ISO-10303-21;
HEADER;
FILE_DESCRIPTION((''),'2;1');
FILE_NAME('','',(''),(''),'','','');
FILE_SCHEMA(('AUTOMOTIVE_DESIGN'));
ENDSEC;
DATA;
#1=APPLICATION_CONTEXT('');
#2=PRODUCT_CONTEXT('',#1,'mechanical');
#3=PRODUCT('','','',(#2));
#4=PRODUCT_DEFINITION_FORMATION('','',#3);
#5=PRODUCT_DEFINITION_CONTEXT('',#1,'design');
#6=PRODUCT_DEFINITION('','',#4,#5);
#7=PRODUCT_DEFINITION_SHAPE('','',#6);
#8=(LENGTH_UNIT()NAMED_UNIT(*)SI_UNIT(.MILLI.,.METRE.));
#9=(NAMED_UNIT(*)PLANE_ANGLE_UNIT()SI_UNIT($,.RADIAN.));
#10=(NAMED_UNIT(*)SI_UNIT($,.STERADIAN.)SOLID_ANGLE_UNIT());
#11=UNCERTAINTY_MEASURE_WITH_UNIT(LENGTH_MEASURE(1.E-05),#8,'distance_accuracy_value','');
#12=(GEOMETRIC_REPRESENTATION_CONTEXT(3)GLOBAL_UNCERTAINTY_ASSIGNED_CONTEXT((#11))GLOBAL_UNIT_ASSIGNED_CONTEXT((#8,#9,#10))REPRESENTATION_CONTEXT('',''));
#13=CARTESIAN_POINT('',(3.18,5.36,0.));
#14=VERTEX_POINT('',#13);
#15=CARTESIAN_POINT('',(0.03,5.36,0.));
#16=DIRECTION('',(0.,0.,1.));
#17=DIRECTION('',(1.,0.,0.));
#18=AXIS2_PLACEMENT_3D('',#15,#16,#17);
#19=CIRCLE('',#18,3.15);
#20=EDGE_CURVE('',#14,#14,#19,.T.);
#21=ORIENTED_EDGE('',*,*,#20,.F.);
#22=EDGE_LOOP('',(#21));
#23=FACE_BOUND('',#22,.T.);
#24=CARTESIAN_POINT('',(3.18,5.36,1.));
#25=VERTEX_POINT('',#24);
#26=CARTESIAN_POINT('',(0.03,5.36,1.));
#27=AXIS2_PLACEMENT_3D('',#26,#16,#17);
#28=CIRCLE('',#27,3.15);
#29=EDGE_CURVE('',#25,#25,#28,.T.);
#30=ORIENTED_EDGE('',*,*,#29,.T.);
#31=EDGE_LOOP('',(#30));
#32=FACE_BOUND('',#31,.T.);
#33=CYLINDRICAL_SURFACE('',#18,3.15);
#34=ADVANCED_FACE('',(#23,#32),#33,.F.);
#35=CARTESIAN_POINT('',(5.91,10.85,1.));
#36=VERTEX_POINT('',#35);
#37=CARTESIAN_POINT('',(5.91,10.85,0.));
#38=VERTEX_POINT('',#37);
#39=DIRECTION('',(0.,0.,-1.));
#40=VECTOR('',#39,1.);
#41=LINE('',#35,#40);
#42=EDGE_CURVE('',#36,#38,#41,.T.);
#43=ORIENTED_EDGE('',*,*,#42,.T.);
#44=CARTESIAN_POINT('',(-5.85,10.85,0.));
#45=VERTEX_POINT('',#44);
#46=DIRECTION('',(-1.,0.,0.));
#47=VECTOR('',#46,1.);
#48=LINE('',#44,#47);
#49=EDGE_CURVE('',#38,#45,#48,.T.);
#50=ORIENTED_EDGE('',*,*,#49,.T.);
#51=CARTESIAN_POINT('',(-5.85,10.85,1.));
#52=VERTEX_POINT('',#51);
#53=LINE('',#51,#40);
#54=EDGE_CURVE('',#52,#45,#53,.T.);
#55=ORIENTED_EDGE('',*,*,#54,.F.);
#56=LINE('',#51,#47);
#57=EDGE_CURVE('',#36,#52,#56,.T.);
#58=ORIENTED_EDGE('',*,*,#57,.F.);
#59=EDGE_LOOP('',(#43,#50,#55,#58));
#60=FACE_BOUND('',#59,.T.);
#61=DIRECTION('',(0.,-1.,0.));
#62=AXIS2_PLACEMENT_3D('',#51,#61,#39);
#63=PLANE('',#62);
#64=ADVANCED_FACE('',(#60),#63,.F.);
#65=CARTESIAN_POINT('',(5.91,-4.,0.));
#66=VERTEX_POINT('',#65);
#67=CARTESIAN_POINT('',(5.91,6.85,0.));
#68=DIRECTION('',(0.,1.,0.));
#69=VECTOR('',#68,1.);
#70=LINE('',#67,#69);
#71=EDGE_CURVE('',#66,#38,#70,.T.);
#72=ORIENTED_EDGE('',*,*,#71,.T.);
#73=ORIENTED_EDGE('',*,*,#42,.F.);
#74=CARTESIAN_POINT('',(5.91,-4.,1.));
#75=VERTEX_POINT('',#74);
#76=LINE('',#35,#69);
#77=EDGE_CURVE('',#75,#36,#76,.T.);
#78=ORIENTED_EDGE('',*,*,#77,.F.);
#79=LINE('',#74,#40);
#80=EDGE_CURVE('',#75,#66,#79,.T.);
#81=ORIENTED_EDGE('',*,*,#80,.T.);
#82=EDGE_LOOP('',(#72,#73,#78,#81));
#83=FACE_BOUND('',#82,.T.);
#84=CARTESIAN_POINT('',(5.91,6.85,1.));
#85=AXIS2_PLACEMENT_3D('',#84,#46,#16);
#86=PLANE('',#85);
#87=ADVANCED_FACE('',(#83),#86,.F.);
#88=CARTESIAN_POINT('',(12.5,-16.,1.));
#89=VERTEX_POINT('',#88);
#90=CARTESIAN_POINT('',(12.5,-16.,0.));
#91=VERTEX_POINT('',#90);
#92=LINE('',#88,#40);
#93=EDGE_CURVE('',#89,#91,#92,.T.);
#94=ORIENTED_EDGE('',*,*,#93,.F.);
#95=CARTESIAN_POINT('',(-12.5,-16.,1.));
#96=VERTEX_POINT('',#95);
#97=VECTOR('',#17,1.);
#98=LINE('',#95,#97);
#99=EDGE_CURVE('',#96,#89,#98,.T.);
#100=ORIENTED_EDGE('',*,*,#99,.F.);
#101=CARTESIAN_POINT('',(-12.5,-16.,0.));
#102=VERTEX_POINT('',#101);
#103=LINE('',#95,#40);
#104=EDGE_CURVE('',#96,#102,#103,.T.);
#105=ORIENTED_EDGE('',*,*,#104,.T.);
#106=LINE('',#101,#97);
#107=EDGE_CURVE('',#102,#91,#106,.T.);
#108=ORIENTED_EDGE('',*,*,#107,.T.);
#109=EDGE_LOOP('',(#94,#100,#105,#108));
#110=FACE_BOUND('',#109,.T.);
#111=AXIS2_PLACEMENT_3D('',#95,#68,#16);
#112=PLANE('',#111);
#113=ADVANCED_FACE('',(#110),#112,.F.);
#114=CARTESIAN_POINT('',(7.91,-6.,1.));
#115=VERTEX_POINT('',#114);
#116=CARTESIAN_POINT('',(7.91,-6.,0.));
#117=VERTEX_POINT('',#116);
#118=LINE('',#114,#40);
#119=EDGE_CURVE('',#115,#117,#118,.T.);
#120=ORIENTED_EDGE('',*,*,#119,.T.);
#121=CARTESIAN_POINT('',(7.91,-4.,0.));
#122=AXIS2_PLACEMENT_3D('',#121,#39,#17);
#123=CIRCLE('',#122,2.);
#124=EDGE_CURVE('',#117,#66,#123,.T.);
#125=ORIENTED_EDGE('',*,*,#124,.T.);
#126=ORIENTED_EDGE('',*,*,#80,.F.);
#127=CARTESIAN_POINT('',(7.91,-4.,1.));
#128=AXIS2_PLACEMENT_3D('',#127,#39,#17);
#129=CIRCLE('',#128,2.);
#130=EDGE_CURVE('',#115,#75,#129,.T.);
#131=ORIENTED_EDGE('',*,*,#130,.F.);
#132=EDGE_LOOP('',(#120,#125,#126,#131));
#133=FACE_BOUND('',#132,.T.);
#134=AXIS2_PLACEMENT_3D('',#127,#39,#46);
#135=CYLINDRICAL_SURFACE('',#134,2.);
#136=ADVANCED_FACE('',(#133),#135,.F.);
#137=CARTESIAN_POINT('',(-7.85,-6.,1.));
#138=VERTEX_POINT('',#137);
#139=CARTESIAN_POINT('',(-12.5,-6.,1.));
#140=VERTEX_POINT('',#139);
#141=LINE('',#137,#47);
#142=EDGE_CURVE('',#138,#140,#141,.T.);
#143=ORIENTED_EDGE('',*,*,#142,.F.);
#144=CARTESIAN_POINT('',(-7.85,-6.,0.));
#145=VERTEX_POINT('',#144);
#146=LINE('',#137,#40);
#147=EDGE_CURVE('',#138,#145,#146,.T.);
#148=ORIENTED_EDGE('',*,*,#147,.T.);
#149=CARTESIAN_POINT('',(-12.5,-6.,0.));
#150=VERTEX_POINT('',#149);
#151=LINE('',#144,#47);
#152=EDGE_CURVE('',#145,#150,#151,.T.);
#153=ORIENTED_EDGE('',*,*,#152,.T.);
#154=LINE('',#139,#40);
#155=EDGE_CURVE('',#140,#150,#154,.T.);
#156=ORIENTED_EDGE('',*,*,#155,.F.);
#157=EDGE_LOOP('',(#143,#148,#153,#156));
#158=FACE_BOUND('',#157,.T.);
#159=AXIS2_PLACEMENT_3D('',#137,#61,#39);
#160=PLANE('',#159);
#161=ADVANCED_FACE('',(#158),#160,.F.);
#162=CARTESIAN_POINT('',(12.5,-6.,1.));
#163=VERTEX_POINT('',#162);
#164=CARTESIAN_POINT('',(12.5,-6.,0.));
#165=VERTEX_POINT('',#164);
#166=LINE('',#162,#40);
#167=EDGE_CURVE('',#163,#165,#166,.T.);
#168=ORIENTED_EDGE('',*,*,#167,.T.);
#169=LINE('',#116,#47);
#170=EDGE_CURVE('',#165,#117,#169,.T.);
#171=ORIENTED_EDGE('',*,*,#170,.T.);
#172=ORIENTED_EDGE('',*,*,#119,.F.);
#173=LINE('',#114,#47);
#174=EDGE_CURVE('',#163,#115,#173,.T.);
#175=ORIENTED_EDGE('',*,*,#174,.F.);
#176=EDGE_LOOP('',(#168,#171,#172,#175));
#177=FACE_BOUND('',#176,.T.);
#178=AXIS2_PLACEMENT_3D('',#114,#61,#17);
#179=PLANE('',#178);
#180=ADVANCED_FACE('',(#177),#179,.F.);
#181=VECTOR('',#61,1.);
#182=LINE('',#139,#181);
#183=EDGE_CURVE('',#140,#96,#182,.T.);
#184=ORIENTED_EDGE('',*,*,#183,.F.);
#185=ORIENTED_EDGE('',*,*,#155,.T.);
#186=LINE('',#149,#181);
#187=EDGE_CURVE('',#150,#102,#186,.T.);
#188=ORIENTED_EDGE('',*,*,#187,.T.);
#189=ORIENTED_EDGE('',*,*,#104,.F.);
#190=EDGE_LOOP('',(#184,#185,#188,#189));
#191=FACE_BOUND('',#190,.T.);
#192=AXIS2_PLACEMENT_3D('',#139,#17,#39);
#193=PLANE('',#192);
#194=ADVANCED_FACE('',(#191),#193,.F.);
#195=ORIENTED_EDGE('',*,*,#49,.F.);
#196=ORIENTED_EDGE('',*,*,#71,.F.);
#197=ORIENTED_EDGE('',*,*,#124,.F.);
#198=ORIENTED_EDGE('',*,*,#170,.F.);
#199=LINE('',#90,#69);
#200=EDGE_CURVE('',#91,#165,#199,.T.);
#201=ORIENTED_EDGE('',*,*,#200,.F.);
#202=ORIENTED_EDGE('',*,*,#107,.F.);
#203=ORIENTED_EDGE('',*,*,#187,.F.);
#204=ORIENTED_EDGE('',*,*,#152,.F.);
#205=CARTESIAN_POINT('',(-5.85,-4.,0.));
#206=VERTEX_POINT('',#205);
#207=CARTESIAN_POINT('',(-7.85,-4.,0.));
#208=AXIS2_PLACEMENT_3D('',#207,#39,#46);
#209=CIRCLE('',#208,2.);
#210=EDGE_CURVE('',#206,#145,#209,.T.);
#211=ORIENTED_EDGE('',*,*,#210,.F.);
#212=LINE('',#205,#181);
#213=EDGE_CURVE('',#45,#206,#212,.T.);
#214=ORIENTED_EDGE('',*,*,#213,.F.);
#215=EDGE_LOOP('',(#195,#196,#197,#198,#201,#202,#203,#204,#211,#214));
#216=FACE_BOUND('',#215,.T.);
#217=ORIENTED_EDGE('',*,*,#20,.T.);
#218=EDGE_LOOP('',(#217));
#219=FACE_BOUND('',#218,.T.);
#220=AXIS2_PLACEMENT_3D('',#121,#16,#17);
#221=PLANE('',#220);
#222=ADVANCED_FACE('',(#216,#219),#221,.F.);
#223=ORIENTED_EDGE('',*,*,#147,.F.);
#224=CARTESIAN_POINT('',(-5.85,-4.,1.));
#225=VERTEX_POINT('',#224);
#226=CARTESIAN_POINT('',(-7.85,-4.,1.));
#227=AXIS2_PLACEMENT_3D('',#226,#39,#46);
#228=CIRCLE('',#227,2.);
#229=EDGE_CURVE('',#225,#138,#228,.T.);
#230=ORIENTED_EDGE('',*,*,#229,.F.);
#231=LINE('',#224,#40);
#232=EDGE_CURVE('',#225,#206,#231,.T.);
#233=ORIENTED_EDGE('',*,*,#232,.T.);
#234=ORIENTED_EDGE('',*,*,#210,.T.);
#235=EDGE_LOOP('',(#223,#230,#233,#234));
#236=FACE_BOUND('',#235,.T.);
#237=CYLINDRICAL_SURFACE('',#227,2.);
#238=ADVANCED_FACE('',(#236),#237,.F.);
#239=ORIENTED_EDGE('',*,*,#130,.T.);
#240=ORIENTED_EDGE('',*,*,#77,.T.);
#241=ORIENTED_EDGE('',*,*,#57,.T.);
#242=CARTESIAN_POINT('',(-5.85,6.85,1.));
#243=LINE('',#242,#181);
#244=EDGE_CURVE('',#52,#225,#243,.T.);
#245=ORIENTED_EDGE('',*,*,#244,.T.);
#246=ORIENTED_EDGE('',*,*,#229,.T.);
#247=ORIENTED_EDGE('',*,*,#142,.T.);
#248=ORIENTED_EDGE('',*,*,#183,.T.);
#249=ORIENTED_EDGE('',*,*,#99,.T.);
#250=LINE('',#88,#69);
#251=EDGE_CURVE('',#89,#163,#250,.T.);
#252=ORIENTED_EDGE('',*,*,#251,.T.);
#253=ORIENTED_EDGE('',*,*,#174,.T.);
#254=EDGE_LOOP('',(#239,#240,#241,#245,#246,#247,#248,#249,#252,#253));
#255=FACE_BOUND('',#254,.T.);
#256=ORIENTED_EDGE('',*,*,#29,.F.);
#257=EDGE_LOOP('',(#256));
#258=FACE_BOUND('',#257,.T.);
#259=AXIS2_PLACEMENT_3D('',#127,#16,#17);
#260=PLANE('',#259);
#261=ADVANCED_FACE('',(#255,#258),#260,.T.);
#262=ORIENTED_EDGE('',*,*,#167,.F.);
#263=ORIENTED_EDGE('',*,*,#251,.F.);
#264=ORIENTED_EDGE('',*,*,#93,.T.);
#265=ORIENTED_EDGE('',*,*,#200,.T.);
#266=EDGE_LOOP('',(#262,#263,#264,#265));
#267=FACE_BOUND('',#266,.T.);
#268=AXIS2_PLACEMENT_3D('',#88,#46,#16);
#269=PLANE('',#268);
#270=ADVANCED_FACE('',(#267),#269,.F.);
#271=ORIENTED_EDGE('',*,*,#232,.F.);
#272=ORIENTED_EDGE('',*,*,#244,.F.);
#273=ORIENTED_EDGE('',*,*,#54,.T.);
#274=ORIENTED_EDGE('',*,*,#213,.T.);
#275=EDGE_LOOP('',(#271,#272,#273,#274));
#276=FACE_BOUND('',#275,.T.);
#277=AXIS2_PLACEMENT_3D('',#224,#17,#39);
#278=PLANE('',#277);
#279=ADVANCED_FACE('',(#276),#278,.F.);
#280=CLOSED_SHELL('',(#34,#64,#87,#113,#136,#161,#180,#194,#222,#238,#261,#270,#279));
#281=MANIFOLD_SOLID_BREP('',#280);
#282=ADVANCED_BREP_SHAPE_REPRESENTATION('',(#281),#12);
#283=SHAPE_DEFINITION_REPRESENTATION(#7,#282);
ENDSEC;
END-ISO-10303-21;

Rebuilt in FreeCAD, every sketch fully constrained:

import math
import FreeCAD as App
import Part
import Sketcher
from FreeCAD import Vector
Q = App.Units.Quantity

doc = App.newDocument("Part")
body = doc.addObject("PartDesign::Body", "Body")

# Sketch on XY plane
sketch1 = doc.addObject("Sketcher::SketchObject", "Sketch")
body.addObject(sketch1)
sketch1.AttachmentSupport = (doc.XY_Plane, [""])
sketch1.MapMode = "FlatFace"
sketch1.addGeometry([
    Part.LineSegment(Vector(-12.5, -6, 0), Vector(-12.5, -16, 0)),  # 0
    Part.LineSegment(Vector(-12.5, -16, 0), Vector(12.5, -16, 0)),  # 1
    Part.LineSegment(Vector(12.5, -16, 0), Vector(12.5, -6, 0)),  # 2
    Part.LineSegment(Vector(12.5, -6, 0), Vector(7.91, -6, 0)),  # 3
    Part.ArcOfCircle(Part.Circle(Vector(7.91, -4, 0), Vector(0, 0, 1), 2), math.radians(-180), math.radians(-90)),  # 4
    Part.LineSegment(Vector(5.91, -4, 0), Vector(5.91, 10.85, 0)),  # 5
    Part.LineSegment(Vector(5.91, 10.85, 0), Vector(-5.85, 10.85, 0)),  # 6
    Part.LineSegment(Vector(-5.85, 10.85, 0), Vector(-5.85, -4, 0)),  # 7
    Part.ArcOfCircle(Part.Circle(Vector(-7.85, -4, 0), Vector(0, 0, 1), 2), math.radians(-90), math.radians(0)),  # 8
    Part.LineSegment(Vector(-7.85, -6, 0), Vector(-12.5, -6, 0)),  # 9
], False)
sketch1.addConstraint([
    Sketcher.Constraint("Coincident", 0, 2, 1, 1),
    Sketcher.Constraint("Coincident", 1, 2, 2, 1),
    Sketcher.Constraint("Coincident", 2, 2, 3, 1),
    Sketcher.Constraint("Tangent", 3, 2, 4, 2),
    Sketcher.Constraint("Tangent", 4, 1, 5, 1),
    Sketcher.Constraint("Coincident", 5, 2, 6, 1),
    Sketcher.Constraint("Coincident", 6, 2, 7, 1),
    Sketcher.Constraint("Tangent", 7, 2, 8, 2),
    Sketcher.Constraint("Tangent", 8, 1, 9, 1),
    Sketcher.Constraint("Coincident", 9, 2, 0, 1),
    Sketcher.Constraint("Vertical", 0),
    Sketcher.Constraint("Horizontal", 1),
    Sketcher.Constraint("Vertical", 2),
    Sketcher.Constraint("Horizontal", 3),
    Sketcher.Constraint("Vertical", 5),
    Sketcher.Constraint("Horizontal", 6),
    Sketcher.Constraint("Vertical", 7),
    Sketcher.Constraint("Horizontal", 9),
    Sketcher.Constraint("Equal", 4, 8),
    Sketcher.Constraint("Symmetric", 2, 2, 9, 2, -2),
    Sketcher.Constraint("Radius", 4, Q("2 mm")),
    Sketcher.Constraint("DistanceX", 1, 1, 1, 2, Q("25 mm")),
    Sketcher.Constraint("DistanceY", 0, 2, 0, 1, Q("10 mm")),
    Sketcher.Constraint("DistanceY", 4, 3, -1, 1, Q("4 mm")),
    Sketcher.Constraint("DistanceX", 3, 2, 3, 1, Q("4.59 mm")),
    Sketcher.Constraint("DistanceX", 6, 2, 6, 1, Q("11.76 mm")),
    Sketcher.Constraint("DistanceY", 5, 1, 5, 2, Q("14.85 mm")),
])
pad1 = doc.addObject("PartDesign::Pad", "Pad")
body.addObject(pad1)
pad1.Profile = sketch1
pad1.Length = 1

# Sketch on XY plane
sketch2 = doc.addObject("Sketcher::SketchObject", "Sketch001")
body.addObject(sketch2)
sketch2.AttachmentSupport = (doc.XY_Plane, [""])
sketch2.MapMode = "FlatFace"
sketch2.AttachmentOffset = App.Placement(Vector(0, 0, 1), App.Rotation())
sketch2.addGeometry(Part.Circle(Vector(0.03, 5.36, 0), Vector(0, 0, 1), 3.15), False)
sketch2.addConstraint([
    Sketcher.Constraint("Diameter", 0, Q("6.3 mm")),
    Sketcher.Constraint("DistanceX", -1, 1, 0, 3, Q("0.03 mm")),
    Sketcher.Constraint("DistanceY", -1, 1, 0, 3, Q("5.36 mm")),
])
pocket1 = doc.addObject("PartDesign::Pocket", "Pocket")
body.addObject(pocket1)
pocket1.Profile = sketch2
pocket1.Length = 1

doc.recompute()
